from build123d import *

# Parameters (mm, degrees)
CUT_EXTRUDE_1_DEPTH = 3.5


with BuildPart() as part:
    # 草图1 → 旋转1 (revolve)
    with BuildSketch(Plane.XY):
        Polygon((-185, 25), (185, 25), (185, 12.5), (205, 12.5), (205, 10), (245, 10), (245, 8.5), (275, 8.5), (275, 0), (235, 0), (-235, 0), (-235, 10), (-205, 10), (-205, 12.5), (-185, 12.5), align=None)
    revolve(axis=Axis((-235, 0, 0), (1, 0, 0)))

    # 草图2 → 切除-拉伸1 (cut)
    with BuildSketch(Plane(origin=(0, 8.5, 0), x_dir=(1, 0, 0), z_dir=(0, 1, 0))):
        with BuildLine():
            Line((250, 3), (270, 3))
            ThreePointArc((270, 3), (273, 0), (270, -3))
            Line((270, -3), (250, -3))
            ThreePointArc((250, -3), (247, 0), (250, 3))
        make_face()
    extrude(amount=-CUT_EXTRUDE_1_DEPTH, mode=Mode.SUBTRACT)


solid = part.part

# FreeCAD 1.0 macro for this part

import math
import FreeCAD as App
import Part
import Sketcher

V = App.Vector


def add_polygon(sketch, points):
    """Adds a closed chain of lines whose ends are joined by coincident constraints."""
    first, n = sketch.GeometryCount, len(points)
    for a, b in zip(points, points[1:] + points[:1]):
        sketch.addGeometry(Part.LineSegment(App.Vector(*a, 0), App.Vector(*b, 0)), False)
    for i in range(n):
        sketch.addConstraint(Sketcher.Constraint("Coincident", first + i, 2, first + (i + 1) % n, 1))

doc = App.newDocument("Part")
body = doc.addObject("PartDesign::Body", "Body")

sketch1 = body.newObject("Sketcher::SketchObject", "Sketch")
sketch1.AttachmentSupport = (doc.getObject("XY_Plane"), [""])
sketch1.MapMode = "FlatFace"
add_polygon(sketch1, [(185, 25), (-185, 25), (-185, 12.5), (-205, 12.5), (-205, 10), (-235, 10), (-235, 0), (275, 0), (275, 8.5), (245, 8.5), (245, 10), (205, 10), (205, 12.5), (185, 12.5)])
sketch1.addConstraint([
    Sketcher.Constraint("Horizontal", 0),
    Sketcher.Constraint("Vertical", 1),
    Sketcher.Constraint("Horizontal", 2),
    Sketcher.Constraint("Vertical", 3),
    Sketcher.Constraint("Horizontal", 4),
    Sketcher.Constraint("Vertical", 5),
    Sketcher.Constraint("Horizontal", 6),
    Sketcher.Constraint("Vertical", 7),
    Sketcher.Constraint("Horizontal", 8),
    Sketcher.Constraint("Vertical", 9),
    Sketcher.Constraint("Horizontal", 10),
    Sketcher.Constraint("Vertical", 11),
    Sketcher.Constraint("Horizontal", 12),
    Sketcher.Constraint("Vertical", 13),
    Sketcher.Constraint("Symmetric", 3, 2, 10, 2, -2),
    Sketcher.Constraint("Symmetric", 1, 2, 12, 2, -2),
    Sketcher.Constraint("PointOnObject", 5, 2, -1),
    Sketcher.Constraint("Equal", 4, 8),
    Sketcher.Constraint("DistanceX", 0, 2, 0, 1, 370.0),
    Sketcher.Constraint("DistanceX", 2, 2, 2, 1, 20.0),
    Sketcher.Constraint("DistanceX", 4, 2, 4, 1, 30.0),
    Sketcher.Constraint("DistanceX", 6, 1, 6, 2, 510.0),
    Sketcher.Constraint("DistanceY", 5, 2, 5, 1, 10.0),
    Sketcher.Constraint("DistanceY", 1, 2, 1, 1, 12.5),
    Sketcher.Constraint("DistanceY", 3, 2, 3, 1, 2.5),
    Sketcher.Constraint("DistanceY", 7, 1, 7, 2, 8.5),
])
revolution = body.newObject("PartDesign::Revolution", "Revolution")
revolution.Profile = sketch1
revolution.ReferenceAxis = (sketch1, ["H_Axis"])
revolution.Angle = 360

sketch2 = body.newObject("Sketcher::SketchObject", "Sketch001")
sketch2.AttachmentSupport = (doc.getObject("XZ_Plane"), [""])
sketch2.MapMode = "FlatFace"
sketch2.AttachmentOffset = App.Placement(V(0, 0, -8.5), App.Rotation())
sketch2.addGeometry([
    Part.LineSegment(V(270, -3, 0), V(250, -3, 0)),
    Part.ArcOfCircle(Part.Circle(V(250, 0, 0), V(0, 0, 1), 3), math.radians(90), math.radians(270)),
    Part.LineSegment(V(250, 3, 0), V(270, 3, 0)),
    Part.ArcOfCircle(Part.Circle(V(270, 0, 0), V(0, 0, 1), 3), math.radians(-90), math.radians(90)),
], False)
sketch2.addConstraint([
    Sketcher.Constraint("Tangent", 0, 2, 1, 2),
    Sketcher.Constraint("Tangent", 1, 1, 2, 1),
    Sketcher.Constraint("Tangent", 2, 2, 3, 2),
    Sketcher.Constraint("Tangent", 3, 1, 0, 1),
    Sketcher.Constraint("Horizontal", 0),
    Sketcher.Constraint("Horizontal", 2),
    Sketcher.Constraint("PointOnObject", 1, 3, -1),
    Sketcher.Constraint("Radius", 1, 3.0),
    Sketcher.Constraint("DistanceX", 0, 2, 0, 1, 20.0),
    Sketcher.Constraint("DistanceX", -1, 1, 1, 3, 250.0),
])
pocket1 = body.newObject("PartDesign::Pocket", "Pocket")
pocket1.Profile = sketch2
pocket1.Length = 3.5
pocket1.Reversed = True

doc.recompute()
